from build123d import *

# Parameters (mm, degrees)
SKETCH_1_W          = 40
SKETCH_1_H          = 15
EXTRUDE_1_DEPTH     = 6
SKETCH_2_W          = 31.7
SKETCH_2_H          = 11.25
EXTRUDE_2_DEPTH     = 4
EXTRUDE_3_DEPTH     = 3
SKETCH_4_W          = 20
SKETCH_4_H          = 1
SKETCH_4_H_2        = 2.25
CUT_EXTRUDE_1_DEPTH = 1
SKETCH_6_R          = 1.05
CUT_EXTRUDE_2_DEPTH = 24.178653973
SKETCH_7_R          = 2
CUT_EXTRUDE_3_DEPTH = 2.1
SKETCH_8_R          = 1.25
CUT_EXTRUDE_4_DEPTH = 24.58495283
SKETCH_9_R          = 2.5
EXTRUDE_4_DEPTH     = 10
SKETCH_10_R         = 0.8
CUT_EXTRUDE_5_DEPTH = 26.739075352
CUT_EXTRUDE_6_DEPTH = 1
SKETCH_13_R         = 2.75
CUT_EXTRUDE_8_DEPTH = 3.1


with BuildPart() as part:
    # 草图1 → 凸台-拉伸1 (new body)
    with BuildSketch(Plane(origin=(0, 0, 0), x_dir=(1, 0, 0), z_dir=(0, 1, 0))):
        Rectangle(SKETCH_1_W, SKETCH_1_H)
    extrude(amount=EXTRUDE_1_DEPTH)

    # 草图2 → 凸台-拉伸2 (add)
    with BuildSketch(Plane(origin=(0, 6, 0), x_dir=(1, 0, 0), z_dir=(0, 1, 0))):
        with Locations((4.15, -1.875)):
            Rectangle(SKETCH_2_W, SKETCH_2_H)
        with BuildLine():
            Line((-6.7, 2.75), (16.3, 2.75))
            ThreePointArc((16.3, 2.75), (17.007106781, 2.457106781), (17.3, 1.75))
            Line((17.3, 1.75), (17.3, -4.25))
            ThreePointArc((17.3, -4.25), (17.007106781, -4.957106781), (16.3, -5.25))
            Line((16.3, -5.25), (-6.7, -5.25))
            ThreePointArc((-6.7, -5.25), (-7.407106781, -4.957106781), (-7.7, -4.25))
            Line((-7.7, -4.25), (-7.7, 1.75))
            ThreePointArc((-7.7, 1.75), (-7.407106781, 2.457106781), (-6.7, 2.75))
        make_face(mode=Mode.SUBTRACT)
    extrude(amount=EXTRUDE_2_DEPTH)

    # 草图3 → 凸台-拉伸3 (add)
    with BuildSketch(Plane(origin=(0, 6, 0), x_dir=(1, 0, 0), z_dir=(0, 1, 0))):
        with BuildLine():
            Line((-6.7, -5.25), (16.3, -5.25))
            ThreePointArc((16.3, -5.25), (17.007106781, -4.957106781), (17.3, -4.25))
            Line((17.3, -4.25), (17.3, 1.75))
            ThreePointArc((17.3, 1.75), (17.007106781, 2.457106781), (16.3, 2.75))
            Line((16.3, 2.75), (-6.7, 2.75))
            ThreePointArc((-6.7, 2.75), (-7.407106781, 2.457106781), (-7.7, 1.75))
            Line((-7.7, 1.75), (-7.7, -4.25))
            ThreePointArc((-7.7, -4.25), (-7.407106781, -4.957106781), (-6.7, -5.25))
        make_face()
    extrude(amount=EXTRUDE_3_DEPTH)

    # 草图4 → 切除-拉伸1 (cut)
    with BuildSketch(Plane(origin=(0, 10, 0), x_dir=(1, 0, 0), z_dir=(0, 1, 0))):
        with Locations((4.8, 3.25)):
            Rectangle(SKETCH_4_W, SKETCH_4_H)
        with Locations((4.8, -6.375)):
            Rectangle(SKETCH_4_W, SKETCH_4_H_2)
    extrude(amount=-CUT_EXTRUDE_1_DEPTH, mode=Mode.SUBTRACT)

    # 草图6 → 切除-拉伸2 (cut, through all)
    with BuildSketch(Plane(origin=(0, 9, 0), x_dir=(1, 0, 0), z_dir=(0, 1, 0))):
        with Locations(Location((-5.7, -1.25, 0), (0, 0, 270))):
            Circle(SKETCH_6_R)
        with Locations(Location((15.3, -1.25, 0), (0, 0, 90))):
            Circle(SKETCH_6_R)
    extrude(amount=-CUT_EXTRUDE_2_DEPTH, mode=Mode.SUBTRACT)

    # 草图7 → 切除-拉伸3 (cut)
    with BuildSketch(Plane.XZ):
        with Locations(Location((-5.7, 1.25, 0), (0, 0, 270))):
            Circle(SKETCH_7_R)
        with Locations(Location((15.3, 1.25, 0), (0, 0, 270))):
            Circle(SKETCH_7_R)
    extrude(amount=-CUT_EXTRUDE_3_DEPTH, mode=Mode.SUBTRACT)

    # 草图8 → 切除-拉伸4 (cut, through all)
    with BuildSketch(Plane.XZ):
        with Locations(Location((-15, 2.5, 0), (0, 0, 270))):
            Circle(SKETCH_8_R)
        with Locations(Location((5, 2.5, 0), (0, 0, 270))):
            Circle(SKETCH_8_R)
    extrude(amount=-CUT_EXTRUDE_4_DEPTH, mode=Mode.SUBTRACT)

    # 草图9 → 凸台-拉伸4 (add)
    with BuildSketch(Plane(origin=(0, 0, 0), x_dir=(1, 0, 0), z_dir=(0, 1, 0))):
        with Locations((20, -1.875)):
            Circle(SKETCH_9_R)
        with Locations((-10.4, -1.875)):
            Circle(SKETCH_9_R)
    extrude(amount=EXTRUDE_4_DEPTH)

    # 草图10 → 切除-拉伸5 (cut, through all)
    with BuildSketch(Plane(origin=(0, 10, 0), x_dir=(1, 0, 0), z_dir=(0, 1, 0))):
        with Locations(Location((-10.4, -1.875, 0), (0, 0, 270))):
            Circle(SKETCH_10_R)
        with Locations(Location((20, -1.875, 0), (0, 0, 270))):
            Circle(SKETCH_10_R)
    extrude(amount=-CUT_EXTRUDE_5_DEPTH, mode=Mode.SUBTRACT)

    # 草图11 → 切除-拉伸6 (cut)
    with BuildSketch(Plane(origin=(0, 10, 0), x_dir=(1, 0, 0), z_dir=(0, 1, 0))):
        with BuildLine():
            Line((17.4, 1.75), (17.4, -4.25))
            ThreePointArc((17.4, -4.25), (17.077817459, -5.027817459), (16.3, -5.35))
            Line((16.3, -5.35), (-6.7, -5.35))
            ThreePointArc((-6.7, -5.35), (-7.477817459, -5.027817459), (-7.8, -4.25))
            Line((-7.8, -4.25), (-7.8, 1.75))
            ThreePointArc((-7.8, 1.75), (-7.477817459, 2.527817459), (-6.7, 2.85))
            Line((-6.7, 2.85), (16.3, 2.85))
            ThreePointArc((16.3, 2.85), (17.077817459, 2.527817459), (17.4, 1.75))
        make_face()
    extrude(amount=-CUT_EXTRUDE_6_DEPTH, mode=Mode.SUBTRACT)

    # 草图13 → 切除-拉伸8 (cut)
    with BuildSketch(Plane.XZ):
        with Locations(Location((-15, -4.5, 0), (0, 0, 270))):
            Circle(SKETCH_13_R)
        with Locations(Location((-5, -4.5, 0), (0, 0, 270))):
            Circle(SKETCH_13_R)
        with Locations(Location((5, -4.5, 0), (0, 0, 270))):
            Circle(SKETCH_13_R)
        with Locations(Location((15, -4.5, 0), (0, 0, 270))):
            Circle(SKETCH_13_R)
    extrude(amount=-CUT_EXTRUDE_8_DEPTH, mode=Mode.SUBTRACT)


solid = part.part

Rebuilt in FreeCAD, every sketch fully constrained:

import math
import FreeCAD as App
import Part
import Sketcher
from FreeCAD import Vector


def add_polygon(sketch, points):
    """Adds a closed chain of lines whose ends are joined by coincident constraints."""
    first, n = sketch.GeometryCount, len(points)
    for a, b in zip(points, points[1:] + points[:1]):
        sketch.addGeometry(Part.LineSegment(App.Vector(*a, 0), App.Vector(*b, 0)), False)
    for i in range(n):
        sketch.addConstraint(Sketcher.Constraint("Coincident", first + i, 2, first + (i + 1) % n, 1))

doc = App.newDocument("Part")
body = doc.addObject("PartDesign::Body", "Body")

sketch1 = doc.addObject("Sketcher::SketchObject", "Sketch")
body.addObject(sketch1)
sketch1.AttachmentSupport = (doc.XZ_Plane, [""])
sketch1.MapMode = "FlatFace"
add_polygon(sketch1, [(-20, -8), (-20, 8), (20, 8), (20, -8)])
sketch1.addConstraint([
    Sketcher.Constraint("Vertical", 0),
    Sketcher.Constraint("Horizontal", 1),
    Sketcher.Constraint("Vertical", 2),
    Sketcher.Constraint("Horizontal", 3),
    Sketcher.Constraint("Symmetric", 0, 2, 2, 2, -1, 1),
    Sketcher.Constraint("DistanceX", 1, 1, 1, 2, 40.0),
    Sketcher.Constraint("DistanceY", 0, 1, 0, 2, 15.0),
])
pad1 = doc.addObject("PartDesign::Pad", "Pad")
body.addObject(pad1)
pad1.Profile = sketch1
pad1.Length = 6
pad1.Reversed = True

sketch2 = doc.addObject("Sketcher::SketchObject", "Sketch001")
body.addObject(sketch2)
sketch2.AttachmentSupport = (doc.XZ_Plane, [""])
sketch2.MapMode = "FlatFace"
sketch2.AttachmentOffset = App.Placement(Vector(0, 0, -6), App.Rotation())
add_polygon(sketch2, [(-11.7, -3.8), (-11.7, 7.5), (20, 7.5), (20, -3.8)])
sketch2.addGeometry(Part.ArcOfCircle(Part.Circle(Vector(-6.7, -1.7, 0), Vector(0, 0, 1), 1), math.radians(-180), math.radians(-90)), False)
sketch2.addGeometry(Part.LineSegment(Vector(-6.7, -2.8, 0), Vector(16.3, -2.8, 0)), False)
sketch2.addGeometry(Part.ArcOfCircle(Part.Circle(Vector(16.3, -1.7, 0), Vector(0, 0, 1), 1), math.radians(-90), math.radians(0)), False)
sketch2.addGeometry(Part.LineSegment(Vector(17.3, -1.8, 0), Vector(17.3, 4.2, 0)), False)
sketch2.addGeometry(Part.ArcOfCircle(Part.Circle(Vector(16.3, 4.2, 0), Vector(0, 0, 1), 1), math.radians(0), math.radians(90)), False)
sketch2.addGeometry(Part.LineSegment(Vector(16.3, 5.2, 0), Vector(-6.7, 5.2, 0)), False)
sketch2.addGeometry(Part.ArcOfCircle(Part.Circle(Vector(-6.7, 4.2, 0), Vector(0, 0, 1), 1), math.radians(90), math.radians(180)), False)
sketch2.addGeometry(Part.LineSegment(Vector(-7.7, 4.2, 0), Vector(-7.7, -1.8, 0)), False)
sketch2.addConstraint([
    Sketcher.Constraint("Tangent", 4, 2, 5, 1),
    Sketcher.Constraint("Tangent", 5, 2, 6, 1),
    Sketcher.Constraint("Tangent", 6, 2, 7, 1),
    Sketcher.Constraint("Tangent", 7, 2, 8, 1),
    Sketcher.Constraint("Tangent", 8, 2, 9, 1),
    Sketcher.Constraint("Tangent", 9, 2, 10, 1),
    Sketcher.Constraint("Tangent", 10, 2, 11, 1),
    Sketcher.Constraint("Tangent", 11, 2, 4, 1),
    Sketcher.Constraint("Vertical", 0),
    Sketcher.Constraint("Horizontal", 1),
    Sketcher.Constraint("Vertical", 2),
    Sketcher.Constraint("Horizontal", 3),
    Sketcher.Constraint("Horizontal", 5),
    Sketcher.Constraint("Vertical", 7),
    Sketcher.Constraint("Horizontal", 9),
    Sketcher.Constraint("Vertical", 11),
    Sketcher.Constraint("Equal", 4, 6),
    Sketcher.Constraint("Equal", 6, 8),
    Sketcher.Constraint("Equal", 8, 10),
    Sketcher.Constraint("Radius", 4, 1.0),
    Sketcher.Constraint("DistanceX", 5, 1, 5, 2, 23.0),
    Sketcher.Constraint("DistanceY", 7, 1, 7, 2, 6.0),
    Sketcher.Constraint("DistanceX", 1, 1, 1, 2, 31.7),
    Sketcher.Constraint("DistanceX", -1, 1, 1, 2, 20.0),
    Sketcher.Constraint("DistanceX", 0, 2, 10, 3, 5.0),
    Sketcher.Constraint("DistanceY", 2, 2, 6, 3, 2.0),
    Sketcher.Constraint("DistanceY", 0, 1, 0, 2, 11.25),
    Sketcher.Constraint("DistanceY", -1, 1, 0, 2, 7.5),
])
pad2 = doc.addObject("PartDesign::Pad", "Pad001")
body.addObject(pad2)
pad2.Profile = sketch2
pad2.Length = 4
pad2.Reversed = True

sketch3 = doc.addObject("Sketcher::SketchObject", "Sketch002")
body.addObject(sketch3)
sketch3.AttachmentSupport = (doc.XZ_Plane, [""])
sketch3.MapMode = "FlatFace"
sketch3.AttachmentOffset = App.Placement(Vector(0, 0, -6), App.Rotation())
sketch3.addGeometry([
    Part.LineSegment(Vector(-6.7, 5.2, 0), Vector(16.3, 5.2, 0)),
    Part.ArcOfCircle(Part.Circle(Vector(16.3, 4.2, 0), Vector(0, 0, 1), 1), math.radians(0), math.radians(90)),
    Part.LineSegment(Vector(17.3, 4.2, 0), Vector(17.3, -1.8, 0)),
    Part.ArcOfCircle(Part.Circle(Vector(16.3, -1.7, 0), Vector(0, 0, 1), 1), math.radians(-90), math.radians(0)),
    Part.LineSegment(Vector(16.3, -2.8, 0), Vector(-6.7, -2.8, 0)),
    Part.ArcOfCircle(Part.Circle(Vector(-6.7, -1.7, 0), Vector(0, 0, 1), 1), math.radians(-180), math.radians(-90)),
    Part.LineSegment(Vector(-7.7, -1.8, 0), Vector(-7.7, 4.2, 0)),
    Part.ArcOfCircle(Part.Circle(Vector(-6.7, 4.2, 0), Vector(0, 0, 1), 1), math.radians(90), math.radians(180)),
], False)
sketch3.addConstraint([
    Sketcher.Constraint("Tangent", 0, 2, 1, 2),
    Sketcher.Constraint("Tangent", 1, 1, 2, 1),
    Sketcher.Constraint("Tangent", 2, 2, 3, 2),
    Sketcher.Constraint("Tangent", 3, 1, 4, 1),
    Sketcher.Constraint("Tangent", 4, 2, 5, 2),
    Sketcher.Constraint("Tangent", 5, 1, 6, 1),
    Sketcher.Constraint("Tangent", 6, 2, 7, 2),
    Sketcher.Constraint("Tangent", 7, 1, 0, 1),
    Sketcher.Constraint("Horizontal", 0),
    Sketcher.Constraint("Vertical", 2),
    Sketcher.Constraint("Horizontal", 4),
    Sketcher.Constraint("Vertical", 6),
    Sketcher.Constraint("Equal", 1, 3),
    Sketcher.Constraint("Equal", 3, 5),
    Sketcher.Constraint("Equal", 5, 7),
    Sketcher.Constraint("Radius", 1, 1.0),
    Sketcher.Constraint("DistanceX", 0, 1, 0, 2, 23.0),
    Sketcher.Constraint("DistanceY", 2, 2, 2, 1, 6.0),
    Sketcher.Constraint("DistanceX", -1, 1, 1, 3, 16.3),
    Sketcher.Constraint("DistanceY", -1, 1, 1, 3, 4.25),
])
pad3 = doc.addObject("PartDesign::Pad", "Pad002")
body.addObject(pad3)
pad3.Profile = sketch3
pad3.Length = 3
pad3.Reversed = True

sketch4 = doc.addObject("Sketcher::SketchObject", "Sketch003")
body.addObject(sketch4)
sketch4.AttachmentSupport = (doc.XZ_Plane, [""])
sketch4.MapMode = "FlatFace"
sketch4.AttachmentOffset = App.Placement(Vector(0, 0, -10), App.Rotation())
add_polygon(sketch4, [(-5.2, -3.8), (-5.2, -2.8), (14.8, -2.8), (14.8, -3.8)])
add_polygon(sketch4, [(-5.2, 5.2), (-5.2, 7.5), (14.8, 7.5), (14.8, 5.2)])
sketch4.addConstraint([
    Sketcher.Constraint("Vertical", 0),
    Sketcher.Constraint("Horizontal", 1),
    Sketcher.Constraint("Vertical", 2),
    Sketcher.Constraint("Horizontal", 3),
    Sketcher.Constraint("Vertical", 4),
    Sketcher.Constraint("Horizontal", 5),
    Sketcher.Constraint("Vertical", 6),
    Sketcher.Constraint("Horizontal", 7),
    Sketcher.Constraint("Vertical", 3, 2, 4, 2),
    Sketcher.Constraint("Vertical", 2, 2, 5, 2),
    Sketcher.Constraint("DistanceX", 1, 1, 1, 2, 20.0),
    Sketcher.Constraint("DistanceY", 0, 1, 0, 2, 1.0),
    Sketcher.Constraint("DistanceY", 1, 2, 6, 2, 8.0),
    Sketcher.Constraint("DistanceY", 4, 1, 4, 2, 2.25),
    Sketcher.Constraint("DistanceX", 0, 2, -1, 1, 5.2),
    Sketcher.Constraint("DistanceY", -1, 1, 4, 2, 7.5),
])
pocket1 = doc.addObject("PartDesign::Pocket", "Pocket")
body.addObject(pocket1)
pocket1.Profile = sketch4
pocket1.Length = 1
pocket1.Reversed = True

sketch5 = doc.addObject("Sketcher::SketchObject", "Sketch004")
body.addObject(sketch5)
sketch5.AttachmentSupport = (doc.XZ_Plane, [""])
sketch5.MapMode = "FlatFace"
sketch5.AttachmentOffset = App.Placement(Vector(0, 0, -9), App.Rotation())
sketch5.addGeometry([
    Part.Circle(Vector(-5.7, 1.2, 0), Vector(0, 0, 1), 1.1),
    Part.Circle(Vector(15.3, 1.2, 0), Vector(0, 0, 1), 1.1),
], False)
sketch5.addConstraint([
    Sketcher.Constraint("Equal", 0, 1),
    Sketcher.Constraint("Horizontal", 0, 3, 1, 3),
    Sketcher.Constraint("Diameter", 0, 2.1),
    Sketcher.Constraint("DistanceX", 0, 3, 1, 3, 21.0),
    Sketcher.Constraint("DistanceX", 0, 3, -1, 1, 5.7),
    Sketcher.Constraint("DistanceY", -1, 1, 0, 3, 1.25),
])
pocket2 = doc.addObject("PartDesign::Pocket", "Pocket001")
body.addObject(pocket2)
pocket2.Profile = sketch5
pocket2.Type = "ThroughAll"
pocket2.Reversed = True

sketch6 = doc.addObject("Sketcher::SketchObject", "Sketch005")
body.addObject(sketch6)
sketch6.AttachmentSupport = (doc.XZ_Plane, [""])
sketch6.MapMode = "FlatFace"
sketch6.addGeometry([
    Part.Circle(Vector(-5.7, 1.2, 0), Vector(0, 0, 1), 2),
    Part.Circle(Vector(15.3, 1.2, 0), Vector(0, 0, 1), 2),
], False)
sketch6.addConstraint([
    Sketcher.Constraint("Equal", 0, 1),
    Sketcher.Constraint("Horizontal", 0, 3, 1, 3),
    Sketcher.Constraint("Diameter", 0, 4.0),
    Sketcher.Constraint("DistanceX", 0, 3, 1, 3, 21.0),
    Sketcher.Constraint("DistanceX", 0, 3, -1, 1, 5.7),
    Sketcher.Constraint("DistanceY", -1, 1, 0, 3, 1.25),
])
pocket3 = doc.addObject("PartDesign::Pocket", "Pocket002")
body.addObject(pocket3)
pocket3.Profile = sketch6
pocket3.Length = 2.1

sketch7 = doc.addObject("Sketcher::SketchObject", "Sketch006")
body.addObject(sketch7)
sketch7.AttachmentSupport = (doc.XZ_Plane, [""])
sketch7.MapMode = "FlatFace"
sketch7.addGeometry([
    Part.Circle(Vector(-15, 2.5, 0), Vector(0, 0, 1), 1.2),
    Part.Circle(Vector(5, 2.5, 0), Vector(0, 0, 1), 1.2),
], False)
sketch7.addConstraint([
    Sketcher.Constraint("Equal", 0, 1),
    Sketcher.Constraint("Horizontal", 0, 3, 1, 3),
    Sketcher.Constraint("Diameter", 0, 2.5),
    Sketcher.Constraint("DistanceX", 0, 3, -1, 1, 15.0),
    Sketcher.Constraint("DistanceX", -1, 1, 1, 3, 5.0),
    Sketcher.Constraint("DistanceY", -1, 1, 0, 3, 2.5),
])
pocket4 = doc.addObject("PartDesign::Pocket", "Pocket003")
body.addObject(pocket4)
pocket4.Profile = sketch7
pocket4.Type = "ThroughAll"

sketch8 = doc.addObject("Sketcher::SketchObject", "Sketch007")
body.addObject(sketch8)
sketch8.AttachmentSupport = (doc.XZ_Plane, [""])
sketch8.MapMode = "FlatFace"
sketch8.addGeometry([
    Part.Circle(Vector(20, 1.9, 0), Vector(0, 0, 1), 2.5),
    Part.Circle(Vector(-10.4, 1.9, 0), Vector(0, 0, 1), 2.5),
], False)
sketch8.addConstraint([
    Sketcher.Constraint("Equal", 0, 1),
    Sketcher.Constraint("Horizontal", 0, 3, 1, 3),
    Sketcher.Constraint("Diameter", 0, 5.0),
    Sketcher.Constraint("DistanceX", -1, 1, 0, 3, 20.0),
    Sketcher.Constraint("DistanceX", 1, 3, -1, 1, 10.4),
    Sketcher.Constraint("DistanceY", -1, 1, 0, 3, 1.875),
])
pad4 = doc.addObject("PartDesign::Pad", "Pad003")
body.addObject(pad4)
pad4.Profile = sketch8
pad4.Length = 10
pad4.Reversed = True

sketch9 = doc.addObject("Sketcher::SketchObject", "Sketch008")
body.addObject(sketch9)
sketch9.AttachmentSupport = (doc.XZ_Plane, [""])
sketch9.MapMode = "FlatFace"
sketch9.AttachmentOffset = App.Placement(Vector(0, 0, -10), App.Rotation())
sketch9.addGeometry([
    Part.Circle(Vector(-10.4, 1.9, 0), Vector(0, 0, 1), 0.8),
    Part.Circle(Vector(20, 1.9, 0), Vector(0, 0, 1), 0.8),
], False)
sketch9.addConstraint([
    Sketcher.Constraint("Equal", 0, 1),
    Sketcher.Constraint("Horizontal", 0, 3, 1, 3),
    Sketcher.Constraint("Diameter", 0, 1.6),
    Sketcher.Constraint("DistanceX", -1, 1, 1, 3, 20.0),
    Sketcher.Constraint("DistanceX", 0, 3, -1, 1, 10.4),
    Sketcher.Constraint("DistanceY", -1, 1, 0, 3, 1.875),
])
pocket5 = doc.addObject("PartDesign::Pocket", "Pocket004")
body.addObject(pocket5)
pocket5.Profile = sketch9
pocket5.Type = "ThroughAll"
pocket5.Reversed = True

sketch10 = doc.addObject("Sketcher::SketchObject", "Sketch009")
body.addObject(sketch10)
sketch10.AttachmentSupport = (doc.XZ_Plane, [""])
sketch10.MapMode = "FlatFace"
sketch10.AttachmentOffset = App.Placement(Vector(0, 0, -10), App.Rotation())
sketch10.addGeometry([
    Part.LineSegment(Vector(17.4, 4.2, 0), Vector(17.4, -1.8, 0)),
    Part.ArcOfCircle(Part.Circle(Vector(16.3, -1.7, 0), Vector(0, 0, 1), 1.1), math.radians(-90), math.radians(0)),
    Part.LineSegment(Vector(16.3, -2.9, 0), Vector(-6.7, -2.9, 0)),
    Part.ArcOfCircle(Part.Circle(Vector(-6.7, -1.7, 0), Vector(0, 0, 1), 1.1), math.radians(-180), math.radians(-90)),
    Part.LineSegment(Vector(-7.8, -1.8, 0), Vector(-7.8, 4.2, 0)),
    Part.ArcOfCircle(Part.Circle(Vector(-6.7, 4.2, 0), Vector(0, 0, 1), 1.1), math.radians(90), math.radians(180)),
    Part.LineSegment(Vector(-6.7, 5.3, 0), Vector(16.3, 5.3, 0)),
    Part.ArcOfCircle(Part.Circle(Vector(16.3, 4.2, 0), Vector(0, 0, 1), 1.1), math.radians(0), math.radians(90)),
], False)
sketch10.addConstraint([
    Sketcher.Constraint("Tangent", 0, 2, 1, 2),
    Sketcher.Constraint("Tangent", 1, 1, 2, 1),
    Sketcher.Constraint("Tangent", 2, 2, 3, 2),
    Sketcher.Constraint("Tangent", 3, 1, 4, 1),
    Sketcher.Constraint("Tangent", 4, 2, 5, 2),
    Sketcher.Constraint("Tangent", 5, 1, 6, 1),
    Sketcher.Constraint("Tangent", 6, 2, 7, 2),
    Sketcher.Constraint("Tangent", 7, 1, 0, 1),
    Sketcher.Constraint("Vertical", 0),
    Sketcher.Constraint("Horizontal", 2),
    Sketcher.Constraint("Vertical", 4),
    Sketcher.Constraint("Horizontal", 6),
    Sketcher.Constraint("Equal", 1, 3),
    Sketcher.Constraint("Equal", 3, 5),
    Sketcher.Constraint("Equal", 5, 7),
    Sketcher.Constraint("Radius", 1, 1.1),
    Sketcher.Constraint("DistanceX", 2, 2, 2, 1, 23.0),
    Sketcher.Constraint("DistanceY", 0, 2, 0, 1, 6.0),
    Sketcher.Constraint("DistanceX", -1, 1, 1, 3, 16.3),
    Sketcher.Constraint("DistanceY", 1, 3, -1, 1, 1.75),
])
pocket6 = doc.addObject("PartDesign::Pocket", "Pocket005")
body.addObject(pocket6)
pocket6.Profile = sketch10
pocket6.Length = 1
pocket6.Reversed = True

sketch11 = doc.addObject("Sketcher::SketchObject", "Sketch010")
body.addObject(sketch11)
sketch11.AttachmentSupport = (doc.XZ_Plane, [""])
sketch11.MapMode = "FlatFace"
sketch11.addGeometry([
    Part.Circle(Vector(-15, -4.5, 0), Vector(0, 0, 1), 2.8),
    Part.Circle(Vector(-5, -4.5, 0), Vector(0, 0, 1), 2.8),
    Part.Circle(Vector(5, -4.5, 0), Vector(0, 0, 1), 2.8),
    Part.Circle(Vector(15, -4.5, 0), Vector(0, 0, 1), 2.8),
], False)
sketch11.addConstraint([
    Sketcher.Constraint("Equal", 0, 1),
    Sketcher.Constraint("Equal", 1, 2),
    Sketcher.Constraint("Equal", 2, 3),
    Sketcher.Constraint("Symmetric", 1, 3, 2, 3, -2),
    Sketcher.Constraint("Symmetric", 0, 3, 3, 3, -2),
    Sketcher.Constraint("Horizontal", 0, 3, 1, 3),
    Sketcher.Constraint("Diameter", 0, 5.5),
    Sketcher.Constraint("DistanceX", 0, 3, -1, 1, 15.0),
    Sketcher.Constraint("DistanceX", 1, 3, -1, 1, 5.0),
    Sketcher.Constraint("DistanceY", 0, 3, -1, 1, 4.5),
])
pocket7 = doc.addObject("PartDesign::Pocket", "Pocket006")
body.addObject(pocket7)
pocket7.Profile = sketch11
pocket7.Length = 3.1

doc.recompute()
